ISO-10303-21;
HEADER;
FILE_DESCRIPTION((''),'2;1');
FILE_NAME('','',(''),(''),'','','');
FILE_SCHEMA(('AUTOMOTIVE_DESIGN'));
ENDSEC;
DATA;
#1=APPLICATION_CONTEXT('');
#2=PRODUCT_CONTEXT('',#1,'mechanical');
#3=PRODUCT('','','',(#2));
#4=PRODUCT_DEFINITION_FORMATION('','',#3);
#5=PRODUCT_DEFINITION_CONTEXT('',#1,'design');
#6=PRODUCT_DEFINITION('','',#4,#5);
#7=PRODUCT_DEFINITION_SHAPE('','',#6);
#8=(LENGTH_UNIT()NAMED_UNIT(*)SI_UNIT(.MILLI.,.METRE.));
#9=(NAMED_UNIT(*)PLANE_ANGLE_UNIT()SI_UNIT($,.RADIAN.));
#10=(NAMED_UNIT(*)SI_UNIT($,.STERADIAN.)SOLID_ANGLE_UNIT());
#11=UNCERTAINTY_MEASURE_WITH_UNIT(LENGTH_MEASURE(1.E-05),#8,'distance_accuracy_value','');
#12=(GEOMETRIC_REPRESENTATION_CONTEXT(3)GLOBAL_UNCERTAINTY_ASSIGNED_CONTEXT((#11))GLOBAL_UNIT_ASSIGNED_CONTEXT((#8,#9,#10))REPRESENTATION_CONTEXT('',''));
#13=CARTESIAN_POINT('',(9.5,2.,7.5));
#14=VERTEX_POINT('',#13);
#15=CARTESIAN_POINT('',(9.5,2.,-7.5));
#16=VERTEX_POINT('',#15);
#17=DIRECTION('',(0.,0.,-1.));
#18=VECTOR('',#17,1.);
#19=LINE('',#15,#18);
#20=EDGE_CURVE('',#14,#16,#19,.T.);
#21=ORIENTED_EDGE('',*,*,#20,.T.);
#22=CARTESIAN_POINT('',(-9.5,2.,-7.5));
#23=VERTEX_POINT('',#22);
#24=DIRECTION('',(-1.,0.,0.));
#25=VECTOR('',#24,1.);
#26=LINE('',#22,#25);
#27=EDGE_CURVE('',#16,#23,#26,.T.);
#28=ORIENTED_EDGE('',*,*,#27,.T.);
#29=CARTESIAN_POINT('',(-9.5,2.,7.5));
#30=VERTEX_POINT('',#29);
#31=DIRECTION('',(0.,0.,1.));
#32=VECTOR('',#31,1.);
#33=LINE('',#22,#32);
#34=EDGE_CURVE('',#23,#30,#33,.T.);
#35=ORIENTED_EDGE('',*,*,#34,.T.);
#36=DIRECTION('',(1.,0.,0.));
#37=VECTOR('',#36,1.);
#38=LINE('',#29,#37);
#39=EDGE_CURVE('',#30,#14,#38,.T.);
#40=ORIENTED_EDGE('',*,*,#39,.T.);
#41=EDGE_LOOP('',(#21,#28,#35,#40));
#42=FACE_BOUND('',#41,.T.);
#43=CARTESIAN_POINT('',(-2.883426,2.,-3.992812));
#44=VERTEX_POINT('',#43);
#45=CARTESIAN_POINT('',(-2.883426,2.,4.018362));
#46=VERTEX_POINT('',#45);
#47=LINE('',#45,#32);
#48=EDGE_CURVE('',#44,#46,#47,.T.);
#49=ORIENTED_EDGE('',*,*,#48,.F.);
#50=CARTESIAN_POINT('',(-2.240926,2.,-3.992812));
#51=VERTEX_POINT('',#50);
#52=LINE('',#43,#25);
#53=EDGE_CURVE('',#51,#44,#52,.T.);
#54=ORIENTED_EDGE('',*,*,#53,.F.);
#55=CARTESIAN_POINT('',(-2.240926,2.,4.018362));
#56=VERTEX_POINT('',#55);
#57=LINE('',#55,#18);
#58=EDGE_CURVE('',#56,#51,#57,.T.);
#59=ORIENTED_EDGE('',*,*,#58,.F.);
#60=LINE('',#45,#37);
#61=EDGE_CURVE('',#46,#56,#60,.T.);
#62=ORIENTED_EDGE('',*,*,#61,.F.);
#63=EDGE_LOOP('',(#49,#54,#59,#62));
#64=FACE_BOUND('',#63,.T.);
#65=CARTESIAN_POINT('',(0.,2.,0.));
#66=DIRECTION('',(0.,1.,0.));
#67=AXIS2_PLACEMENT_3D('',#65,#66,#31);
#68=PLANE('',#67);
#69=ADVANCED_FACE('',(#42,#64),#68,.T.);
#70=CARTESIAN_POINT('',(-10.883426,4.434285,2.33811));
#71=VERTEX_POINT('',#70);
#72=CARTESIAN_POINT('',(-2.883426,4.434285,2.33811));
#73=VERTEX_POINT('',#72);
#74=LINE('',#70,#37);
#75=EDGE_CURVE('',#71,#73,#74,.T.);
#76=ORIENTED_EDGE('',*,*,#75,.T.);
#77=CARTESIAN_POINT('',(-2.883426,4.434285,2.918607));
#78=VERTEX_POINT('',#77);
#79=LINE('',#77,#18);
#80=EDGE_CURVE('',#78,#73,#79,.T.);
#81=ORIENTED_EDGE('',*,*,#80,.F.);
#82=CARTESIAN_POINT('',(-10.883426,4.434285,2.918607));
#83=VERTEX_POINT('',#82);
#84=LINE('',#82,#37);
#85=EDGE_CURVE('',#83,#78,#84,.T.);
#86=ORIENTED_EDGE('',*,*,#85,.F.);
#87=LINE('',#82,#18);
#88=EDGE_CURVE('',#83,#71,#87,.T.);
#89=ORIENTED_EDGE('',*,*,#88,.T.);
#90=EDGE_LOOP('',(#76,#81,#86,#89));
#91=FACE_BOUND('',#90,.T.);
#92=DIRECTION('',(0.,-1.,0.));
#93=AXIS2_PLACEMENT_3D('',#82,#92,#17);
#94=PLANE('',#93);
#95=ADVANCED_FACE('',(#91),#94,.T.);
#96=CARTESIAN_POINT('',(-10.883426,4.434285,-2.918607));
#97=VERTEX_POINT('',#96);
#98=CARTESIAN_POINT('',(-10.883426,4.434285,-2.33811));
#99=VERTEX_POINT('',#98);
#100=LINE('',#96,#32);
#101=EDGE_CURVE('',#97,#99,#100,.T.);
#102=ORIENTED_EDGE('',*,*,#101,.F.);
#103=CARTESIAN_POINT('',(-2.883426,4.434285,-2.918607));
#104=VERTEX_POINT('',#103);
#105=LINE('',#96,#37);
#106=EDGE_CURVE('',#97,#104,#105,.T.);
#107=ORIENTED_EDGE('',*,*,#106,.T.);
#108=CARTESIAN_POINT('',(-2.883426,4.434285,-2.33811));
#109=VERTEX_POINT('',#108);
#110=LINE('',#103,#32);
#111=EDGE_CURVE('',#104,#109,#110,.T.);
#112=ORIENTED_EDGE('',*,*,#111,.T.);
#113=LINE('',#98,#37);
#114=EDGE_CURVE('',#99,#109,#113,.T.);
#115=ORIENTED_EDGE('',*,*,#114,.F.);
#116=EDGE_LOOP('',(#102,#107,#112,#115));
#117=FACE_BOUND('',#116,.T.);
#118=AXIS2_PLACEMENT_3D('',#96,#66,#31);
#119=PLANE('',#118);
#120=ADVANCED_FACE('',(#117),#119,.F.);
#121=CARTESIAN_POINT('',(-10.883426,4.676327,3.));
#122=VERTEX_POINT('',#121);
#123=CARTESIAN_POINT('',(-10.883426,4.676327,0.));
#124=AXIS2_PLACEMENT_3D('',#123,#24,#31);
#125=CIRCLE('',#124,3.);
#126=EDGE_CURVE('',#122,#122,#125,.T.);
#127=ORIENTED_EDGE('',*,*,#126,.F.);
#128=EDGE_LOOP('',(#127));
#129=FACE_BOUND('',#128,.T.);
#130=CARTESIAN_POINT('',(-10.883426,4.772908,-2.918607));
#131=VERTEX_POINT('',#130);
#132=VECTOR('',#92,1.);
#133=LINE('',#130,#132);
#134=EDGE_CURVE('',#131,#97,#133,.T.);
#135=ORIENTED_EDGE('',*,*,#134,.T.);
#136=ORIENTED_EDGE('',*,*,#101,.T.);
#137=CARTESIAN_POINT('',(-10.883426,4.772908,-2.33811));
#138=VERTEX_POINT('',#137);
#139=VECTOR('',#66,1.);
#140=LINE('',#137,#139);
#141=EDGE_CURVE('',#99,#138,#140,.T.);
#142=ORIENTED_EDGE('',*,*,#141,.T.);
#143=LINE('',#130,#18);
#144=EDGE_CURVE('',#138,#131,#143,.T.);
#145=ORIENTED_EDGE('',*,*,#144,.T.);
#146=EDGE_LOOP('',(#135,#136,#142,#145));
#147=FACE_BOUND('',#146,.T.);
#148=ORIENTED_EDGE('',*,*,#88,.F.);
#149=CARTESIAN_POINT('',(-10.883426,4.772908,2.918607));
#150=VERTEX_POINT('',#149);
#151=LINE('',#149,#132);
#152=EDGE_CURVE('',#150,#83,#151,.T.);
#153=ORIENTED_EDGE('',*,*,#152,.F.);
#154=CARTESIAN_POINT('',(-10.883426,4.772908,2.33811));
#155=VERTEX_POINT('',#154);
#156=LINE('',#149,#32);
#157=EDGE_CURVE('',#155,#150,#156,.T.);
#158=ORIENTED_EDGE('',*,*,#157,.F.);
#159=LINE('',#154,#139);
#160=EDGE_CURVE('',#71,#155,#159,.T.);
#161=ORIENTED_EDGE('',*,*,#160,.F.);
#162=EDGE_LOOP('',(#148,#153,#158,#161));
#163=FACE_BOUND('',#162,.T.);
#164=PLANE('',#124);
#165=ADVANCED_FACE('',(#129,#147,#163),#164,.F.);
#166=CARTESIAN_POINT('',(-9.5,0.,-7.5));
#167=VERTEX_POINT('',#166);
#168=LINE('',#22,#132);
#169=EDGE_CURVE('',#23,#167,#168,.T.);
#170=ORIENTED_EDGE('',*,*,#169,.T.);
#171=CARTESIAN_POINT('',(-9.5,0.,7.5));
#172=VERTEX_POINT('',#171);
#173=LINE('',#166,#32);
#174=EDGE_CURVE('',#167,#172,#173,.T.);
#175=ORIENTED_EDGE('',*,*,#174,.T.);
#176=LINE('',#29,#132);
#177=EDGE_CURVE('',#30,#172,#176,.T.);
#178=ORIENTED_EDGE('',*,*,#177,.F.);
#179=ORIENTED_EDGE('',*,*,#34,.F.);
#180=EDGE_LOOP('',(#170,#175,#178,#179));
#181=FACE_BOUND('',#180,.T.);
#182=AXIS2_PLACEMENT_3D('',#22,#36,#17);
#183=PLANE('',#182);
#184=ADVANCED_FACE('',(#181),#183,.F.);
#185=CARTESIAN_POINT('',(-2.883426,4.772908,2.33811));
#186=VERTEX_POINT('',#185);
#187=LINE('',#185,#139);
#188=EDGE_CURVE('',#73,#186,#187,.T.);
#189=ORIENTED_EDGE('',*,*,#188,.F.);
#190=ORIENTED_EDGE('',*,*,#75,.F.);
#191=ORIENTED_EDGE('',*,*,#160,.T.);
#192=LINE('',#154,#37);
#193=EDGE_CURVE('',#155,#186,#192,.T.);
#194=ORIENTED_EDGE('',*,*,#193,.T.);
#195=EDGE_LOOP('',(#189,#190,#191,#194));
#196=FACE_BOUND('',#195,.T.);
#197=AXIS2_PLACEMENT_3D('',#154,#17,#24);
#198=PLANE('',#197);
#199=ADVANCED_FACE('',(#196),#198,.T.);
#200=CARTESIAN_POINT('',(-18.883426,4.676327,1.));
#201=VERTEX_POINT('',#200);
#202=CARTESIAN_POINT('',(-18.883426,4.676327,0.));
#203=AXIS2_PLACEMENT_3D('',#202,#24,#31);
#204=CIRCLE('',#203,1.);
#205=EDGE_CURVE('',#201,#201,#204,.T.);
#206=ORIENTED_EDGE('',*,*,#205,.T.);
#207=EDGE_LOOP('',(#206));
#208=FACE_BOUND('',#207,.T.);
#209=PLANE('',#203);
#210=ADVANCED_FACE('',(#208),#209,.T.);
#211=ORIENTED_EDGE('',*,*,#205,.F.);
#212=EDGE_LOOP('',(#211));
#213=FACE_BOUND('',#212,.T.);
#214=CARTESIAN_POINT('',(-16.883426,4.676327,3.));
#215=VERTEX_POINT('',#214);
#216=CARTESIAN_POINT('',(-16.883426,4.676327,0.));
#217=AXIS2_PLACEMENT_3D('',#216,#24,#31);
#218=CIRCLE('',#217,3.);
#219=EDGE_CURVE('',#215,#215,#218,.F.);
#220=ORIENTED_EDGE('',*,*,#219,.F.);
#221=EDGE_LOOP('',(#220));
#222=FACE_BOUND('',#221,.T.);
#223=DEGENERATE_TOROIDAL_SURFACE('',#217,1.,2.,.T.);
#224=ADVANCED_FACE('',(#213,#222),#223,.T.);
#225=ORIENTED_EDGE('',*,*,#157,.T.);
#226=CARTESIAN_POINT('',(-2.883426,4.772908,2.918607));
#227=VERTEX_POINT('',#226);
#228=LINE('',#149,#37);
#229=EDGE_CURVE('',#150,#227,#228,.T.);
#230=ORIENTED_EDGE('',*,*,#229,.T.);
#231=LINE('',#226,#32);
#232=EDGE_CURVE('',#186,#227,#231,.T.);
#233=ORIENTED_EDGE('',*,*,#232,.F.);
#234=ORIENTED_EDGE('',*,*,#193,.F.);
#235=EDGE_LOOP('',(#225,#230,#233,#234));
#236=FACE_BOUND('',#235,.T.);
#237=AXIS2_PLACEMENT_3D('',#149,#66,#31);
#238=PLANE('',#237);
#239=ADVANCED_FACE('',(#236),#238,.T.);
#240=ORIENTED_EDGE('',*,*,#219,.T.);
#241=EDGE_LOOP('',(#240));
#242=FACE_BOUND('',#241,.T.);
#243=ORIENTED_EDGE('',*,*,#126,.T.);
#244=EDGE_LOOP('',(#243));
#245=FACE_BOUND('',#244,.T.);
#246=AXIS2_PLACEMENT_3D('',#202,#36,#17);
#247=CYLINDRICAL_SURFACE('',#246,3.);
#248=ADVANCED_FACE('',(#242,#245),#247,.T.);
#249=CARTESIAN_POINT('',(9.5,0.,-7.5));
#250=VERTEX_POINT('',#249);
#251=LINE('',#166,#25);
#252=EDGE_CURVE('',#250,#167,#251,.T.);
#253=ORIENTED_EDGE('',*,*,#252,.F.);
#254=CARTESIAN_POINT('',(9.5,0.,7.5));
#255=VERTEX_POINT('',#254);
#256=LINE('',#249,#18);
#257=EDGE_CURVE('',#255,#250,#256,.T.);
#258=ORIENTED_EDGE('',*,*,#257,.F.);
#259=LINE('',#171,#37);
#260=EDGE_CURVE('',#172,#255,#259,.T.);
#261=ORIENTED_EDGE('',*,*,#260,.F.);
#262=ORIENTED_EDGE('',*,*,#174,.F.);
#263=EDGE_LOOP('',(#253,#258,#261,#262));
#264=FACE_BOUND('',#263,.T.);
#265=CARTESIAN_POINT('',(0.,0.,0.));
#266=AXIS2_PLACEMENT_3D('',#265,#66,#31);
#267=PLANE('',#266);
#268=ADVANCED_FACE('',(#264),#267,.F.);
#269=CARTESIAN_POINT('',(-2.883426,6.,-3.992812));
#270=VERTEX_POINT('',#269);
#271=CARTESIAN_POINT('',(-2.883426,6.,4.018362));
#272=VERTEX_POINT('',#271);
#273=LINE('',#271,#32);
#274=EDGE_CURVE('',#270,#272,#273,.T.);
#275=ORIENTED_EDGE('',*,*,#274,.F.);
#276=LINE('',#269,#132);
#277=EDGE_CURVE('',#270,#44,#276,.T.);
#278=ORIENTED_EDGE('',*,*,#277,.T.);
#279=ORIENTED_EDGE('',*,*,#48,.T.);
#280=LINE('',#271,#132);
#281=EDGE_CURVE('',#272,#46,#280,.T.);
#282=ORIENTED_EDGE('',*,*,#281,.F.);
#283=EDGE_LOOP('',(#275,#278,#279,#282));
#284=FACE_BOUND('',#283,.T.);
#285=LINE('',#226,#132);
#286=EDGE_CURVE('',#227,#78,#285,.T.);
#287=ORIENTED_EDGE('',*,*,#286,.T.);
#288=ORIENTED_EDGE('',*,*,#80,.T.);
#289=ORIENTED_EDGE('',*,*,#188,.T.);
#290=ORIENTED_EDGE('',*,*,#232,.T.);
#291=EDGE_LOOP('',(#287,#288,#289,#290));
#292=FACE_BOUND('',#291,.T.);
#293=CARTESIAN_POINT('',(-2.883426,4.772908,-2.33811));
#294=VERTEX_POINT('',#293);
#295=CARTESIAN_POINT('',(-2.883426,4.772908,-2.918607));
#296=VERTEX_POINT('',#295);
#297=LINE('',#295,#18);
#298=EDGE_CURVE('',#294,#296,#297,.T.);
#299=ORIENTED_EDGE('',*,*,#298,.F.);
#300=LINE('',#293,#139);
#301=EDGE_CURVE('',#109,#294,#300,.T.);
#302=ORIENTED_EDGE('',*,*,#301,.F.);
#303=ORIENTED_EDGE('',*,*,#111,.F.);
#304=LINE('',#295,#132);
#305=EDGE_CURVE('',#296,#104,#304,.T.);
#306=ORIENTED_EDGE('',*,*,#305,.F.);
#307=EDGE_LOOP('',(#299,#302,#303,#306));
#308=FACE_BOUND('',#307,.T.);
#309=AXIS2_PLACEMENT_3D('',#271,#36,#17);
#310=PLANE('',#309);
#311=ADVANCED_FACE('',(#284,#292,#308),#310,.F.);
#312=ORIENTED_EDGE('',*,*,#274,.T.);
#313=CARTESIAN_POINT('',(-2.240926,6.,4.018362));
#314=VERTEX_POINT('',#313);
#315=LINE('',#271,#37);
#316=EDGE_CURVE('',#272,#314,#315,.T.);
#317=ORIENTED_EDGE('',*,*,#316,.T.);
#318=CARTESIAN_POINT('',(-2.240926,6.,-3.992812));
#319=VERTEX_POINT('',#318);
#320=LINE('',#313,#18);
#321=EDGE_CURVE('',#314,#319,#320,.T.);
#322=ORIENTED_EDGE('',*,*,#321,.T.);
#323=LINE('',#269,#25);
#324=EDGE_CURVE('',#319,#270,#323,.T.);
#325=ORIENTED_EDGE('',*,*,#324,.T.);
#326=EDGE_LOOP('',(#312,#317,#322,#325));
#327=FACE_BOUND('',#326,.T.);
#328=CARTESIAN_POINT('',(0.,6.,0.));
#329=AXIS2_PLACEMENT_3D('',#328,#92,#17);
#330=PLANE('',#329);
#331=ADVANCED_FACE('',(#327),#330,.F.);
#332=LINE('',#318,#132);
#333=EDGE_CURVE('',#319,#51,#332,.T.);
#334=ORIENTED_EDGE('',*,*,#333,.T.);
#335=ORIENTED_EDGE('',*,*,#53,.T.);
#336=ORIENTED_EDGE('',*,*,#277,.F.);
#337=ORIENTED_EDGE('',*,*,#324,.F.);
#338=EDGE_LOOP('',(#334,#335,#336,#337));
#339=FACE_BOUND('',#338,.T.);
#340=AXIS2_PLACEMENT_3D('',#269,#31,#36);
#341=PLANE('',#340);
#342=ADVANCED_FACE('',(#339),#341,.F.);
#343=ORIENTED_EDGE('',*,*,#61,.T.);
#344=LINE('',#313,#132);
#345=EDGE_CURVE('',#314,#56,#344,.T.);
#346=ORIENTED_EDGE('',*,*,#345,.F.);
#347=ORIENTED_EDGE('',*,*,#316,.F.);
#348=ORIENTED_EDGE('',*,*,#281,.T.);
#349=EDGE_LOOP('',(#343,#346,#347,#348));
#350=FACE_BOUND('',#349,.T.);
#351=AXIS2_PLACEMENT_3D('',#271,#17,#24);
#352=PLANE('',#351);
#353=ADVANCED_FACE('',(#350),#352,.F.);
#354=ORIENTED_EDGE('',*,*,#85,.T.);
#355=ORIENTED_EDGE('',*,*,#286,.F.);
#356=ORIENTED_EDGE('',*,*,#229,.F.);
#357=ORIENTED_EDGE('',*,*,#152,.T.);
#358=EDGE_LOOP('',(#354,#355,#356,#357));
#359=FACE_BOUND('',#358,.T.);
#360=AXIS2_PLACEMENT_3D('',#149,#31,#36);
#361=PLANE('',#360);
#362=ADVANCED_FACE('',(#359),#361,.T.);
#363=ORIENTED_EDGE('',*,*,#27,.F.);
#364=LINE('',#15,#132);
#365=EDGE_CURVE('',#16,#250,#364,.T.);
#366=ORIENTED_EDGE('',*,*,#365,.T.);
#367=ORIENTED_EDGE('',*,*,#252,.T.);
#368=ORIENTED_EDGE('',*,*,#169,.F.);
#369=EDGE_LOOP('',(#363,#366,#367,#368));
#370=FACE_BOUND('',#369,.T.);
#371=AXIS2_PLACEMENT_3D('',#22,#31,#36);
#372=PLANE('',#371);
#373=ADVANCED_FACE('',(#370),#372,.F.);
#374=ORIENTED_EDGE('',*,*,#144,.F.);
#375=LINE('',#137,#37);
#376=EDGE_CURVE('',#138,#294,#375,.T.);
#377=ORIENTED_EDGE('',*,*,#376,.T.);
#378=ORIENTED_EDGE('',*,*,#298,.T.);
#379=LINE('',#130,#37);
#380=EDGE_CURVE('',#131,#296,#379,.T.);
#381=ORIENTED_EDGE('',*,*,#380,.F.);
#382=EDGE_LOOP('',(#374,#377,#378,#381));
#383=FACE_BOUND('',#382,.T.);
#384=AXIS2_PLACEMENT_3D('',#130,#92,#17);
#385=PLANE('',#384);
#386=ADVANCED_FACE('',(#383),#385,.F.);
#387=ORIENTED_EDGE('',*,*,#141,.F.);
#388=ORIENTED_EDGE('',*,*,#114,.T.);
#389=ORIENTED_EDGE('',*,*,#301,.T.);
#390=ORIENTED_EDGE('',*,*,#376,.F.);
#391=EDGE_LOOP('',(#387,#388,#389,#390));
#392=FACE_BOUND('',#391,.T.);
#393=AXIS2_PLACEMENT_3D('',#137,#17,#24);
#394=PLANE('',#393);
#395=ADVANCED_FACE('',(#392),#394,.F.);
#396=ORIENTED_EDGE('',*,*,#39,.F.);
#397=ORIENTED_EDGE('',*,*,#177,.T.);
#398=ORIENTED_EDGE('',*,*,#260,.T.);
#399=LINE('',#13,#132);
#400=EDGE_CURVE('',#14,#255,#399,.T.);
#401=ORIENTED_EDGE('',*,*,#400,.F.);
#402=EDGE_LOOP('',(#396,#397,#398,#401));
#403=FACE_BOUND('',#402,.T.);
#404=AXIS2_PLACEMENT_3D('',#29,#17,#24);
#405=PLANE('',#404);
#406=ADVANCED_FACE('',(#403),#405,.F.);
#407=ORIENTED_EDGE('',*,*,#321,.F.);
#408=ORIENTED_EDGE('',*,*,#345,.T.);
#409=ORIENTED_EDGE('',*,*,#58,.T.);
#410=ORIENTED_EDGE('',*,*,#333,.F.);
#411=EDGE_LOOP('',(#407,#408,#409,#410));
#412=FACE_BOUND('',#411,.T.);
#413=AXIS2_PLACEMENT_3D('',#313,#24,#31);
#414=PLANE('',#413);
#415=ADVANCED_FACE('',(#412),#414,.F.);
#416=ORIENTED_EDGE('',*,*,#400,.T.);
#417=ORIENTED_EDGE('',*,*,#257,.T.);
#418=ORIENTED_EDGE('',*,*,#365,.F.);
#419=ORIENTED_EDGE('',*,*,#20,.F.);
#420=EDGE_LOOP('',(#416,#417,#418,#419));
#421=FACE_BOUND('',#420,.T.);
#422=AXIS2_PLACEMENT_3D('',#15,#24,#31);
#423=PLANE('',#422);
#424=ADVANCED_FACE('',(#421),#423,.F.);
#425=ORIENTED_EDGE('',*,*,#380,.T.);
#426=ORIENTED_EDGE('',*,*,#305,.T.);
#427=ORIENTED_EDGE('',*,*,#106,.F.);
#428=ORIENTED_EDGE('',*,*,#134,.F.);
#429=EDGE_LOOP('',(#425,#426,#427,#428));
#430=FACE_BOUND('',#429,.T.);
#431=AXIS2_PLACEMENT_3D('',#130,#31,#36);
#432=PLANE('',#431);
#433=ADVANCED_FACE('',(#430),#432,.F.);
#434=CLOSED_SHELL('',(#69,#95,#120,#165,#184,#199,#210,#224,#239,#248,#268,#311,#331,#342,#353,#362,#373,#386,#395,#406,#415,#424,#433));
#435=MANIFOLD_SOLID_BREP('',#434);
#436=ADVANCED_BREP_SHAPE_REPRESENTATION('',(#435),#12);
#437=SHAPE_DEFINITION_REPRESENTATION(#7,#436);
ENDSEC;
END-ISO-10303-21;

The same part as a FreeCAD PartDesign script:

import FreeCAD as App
import Part
import Sketcher
from FreeCAD import Vector
Q = App.Units.Quantity


def edges_at(feature, points):
    """Names of the edges that pass closest to the given points."""
    edges = feature.Shape.Edges
    near = lambda p: min(range(len(edges)), key=lambda i: edges[i].distToShape(Part.Vertex(*p))[0])
    return sorted({f"Edge{near(p) + 1}" for p in points})


def add_polygon(sketch, points):
    """Adds a closed chain of lines whose ends are joined by coincident constraints."""
    first, n = sketch.GeometryCount, len(points)
    for a, b in zip(points, points[1:] + points[:1]):
        sketch.addGeometry(Part.LineSegment(App.Vector(*a, 0), App.Vector(*b, 0)), False)
    for i in range(n):
        sketch.addConstraint(Sketcher.Constraint("Coincident", first + i, 2, first + (i + 1) % n, 1))

doc = App.newDocument("Part")
params = doc.addObject("Spreadsheet::Sheet", "Params")
for row, (alias, value) in enumerate([
    ("sketch1_width", "19 mm"),
    ("sketch1_height", "15 mm"),
    ("pad1_length", "2 mm"),
    ("pad2_length", "4 mm"),
    ("pad3_length", "8 mm"),
    ("sketch4_diameter", "6 mm"),
    ("pad4_length", "8 mm"),
    ("fillet_radius", "2 mm"),
], start=1):
    params.set(f"A{row}", alias)
    params.set(f"B{row}", "=" + value)
    params.setAlias(f"B{row}", alias)

body = doc.addObject("PartDesign::Body", "Body")

sketch1 = body.newObject("Sketcher::SketchObject", "Sketch")
sketch1.AttachmentSupport = (doc.getObject("XZ_Plane"), [""])
sketch1.MapMode = "FlatFace"
add_polygon(sketch1, [(-9.5, -7.5), (-9.5, 7.5), (9.5, 7.5), (9.5, -7.5)])
sketch1.addConstraint(Sketcher.Constraint("Vertical", 0))
sketch1.addConstraint(Sketcher.Constraint("Horizontal", 1))
sketch1.addConstraint(Sketcher.Constraint("Vertical", 2))
sketch1.addConstraint(Sketcher.Constraint("Horizontal", 3))
sketch1.addConstraint(Sketcher.Constraint("Symmetric", 0, 2, 2, 2, -1, 1))
sketch1.addConstraint(Sketcher.Constraint("DistanceX", 1, 1, 1, 2, Q("19 mm")))
sketch1.addConstraint(Sketcher.Constraint("DistanceY", 0, 1, 0, 2, Q("15 mm")))
sketch1.setExpression("Constraints[9]", "Params.sketch1_width")
sketch1.setExpression("Constraints[10]", "Params.sketch1_height")
pad1 = body.newObject("PartDesign::Pad", "Pad")
pad1.Profile = sketch1
pad1.setExpression("Length", "Params.pad1_length")
pad1.Reversed = True

sketch2 = body.newObject("Sketcher::SketchObject", "Sketch001")
sketch2.AttachmentSupport = (doc.getObject("XZ_Plane"), [""])
sketch2.MapMode = "FlatFace"
sketch2.AttachmentOffset = App.Placement(Vector(0, 0, -2), App.Rotation())
add_polygon(sketch2, [(-2.883426, -3.992812), (-2.883426, 4.018362), (-2.240926, 4.018362), (-2.240926, -3.992812)])
sketch2.addConstraint(Sketcher.Constraint("Vertical", 0))
sketch2.addConstraint(Sketcher.Constraint("Horizontal", 1))
sketch2.addConstraint(Sketcher.Constraint("Vertical", 2))
sketch2.addConstraint(Sketcher.Constraint("Horizontal", 3))
sketch2.addConstraint(Sketcher.Constraint("DistanceX", 1, 1, 1, 2, Q("0.6425 mm")))
sketch2.addConstraint(Sketcher.Constraint("DistanceY", 0, 1, 0, 2, Q("8.011173 mm")))
sketch2.addConstraint(Sketcher.Constraint("DistanceY", -1, 1, 0, 2, Q("4.018362 mm")))
sketch2.addConstraint(Sketcher.Constraint("DistanceX", 0, 2, -1, 1, Q("2.883426 mm")))
pad2 = body.newObject("PartDesign::Pad", "Pad001")
pad2.Profile = sketch2
pad2.setExpression("Length", "Params.pad2_length")
pad2.Reversed = True

sketch3 = body.newObject("Sketcher::SketchObject", "Sketch002")
sketch3.AttachmentSupport = (doc.getObject("YZ_Plane"), [""])
sketch3.MapMode = "FlatFace"
sketch3.AttachmentOffset = App.Placement(Vector(0, 0, -2.883426), App.Rotation())
add_polygon(sketch3, [(4.772908, -2.918607), (4.434285, -2.918607), (4.434285, -2.33811), (4.772908, -2.33811)])
sketch3.addConstraint(Sketcher.Constraint("Horizontal", 0))
sketch3.addConstraint(Sketcher.Constraint("Vertical", 1))
sketch3.addConstraint(Sketcher.Constraint("Horizontal", 2))
sketch3.addConstraint(Sketcher.Constraint("Vertical", 3))
sketch3.addConstraint(Sketcher.Constraint("DistanceX", 0, 2, 0, 1, Q("0.338623 mm")))
sketch3.addConstraint(Sketcher.Constraint("DistanceY", 1, 1, 1, 2, Q("0.580496 mm")))
sketch3.addConstraint(Sketcher.Constraint("DistanceY", 1, 2, -1, 1, Q("2.33811 mm")))
sketch3.addConstraint(Sketcher.Constraint("DistanceX", -1, 1, 0, 2, Q("4.434285 mm")))
pad3 = body.newObject("PartDesign::Pad", "Pad002")
pad3.Profile = sketch3
pad3.setExpression("Length", "Params.pad3_length")
pad3.Reversed = True
doc.recompute()

mirrored = body.newObject("PartDesign::Mirrored", "Mirrored")
mirrored.Originals = [pad3]
mirrored.MirrorPlane = (doc.getObject("XY_Plane"), [""])
body.Tip = mirrored

sketch4 = body.newObject("Sketcher::SketchObject", "Sketch003")
sketch4.AttachmentSupport = (doc.getObject("YZ_Plane"), [""])
sketch4.MapMode = "FlatFace"
sketch4.AttachmentOffset = App.Placement(Vector(0, 0, -10.883426), App.Rotation())
sketch4.addGeometry(Part.Circle(Vector(4.676327, 0, 0), Vector(0, 0, 1), 3), False)
sketch4.addConstraint(Sketcher.Constraint("PointOnObject", 0, 3, -1))
sketch4.addConstraint(Sketcher.Constraint("Diameter", 0, Q("6 mm")))
sketch4.addConstraint(Sketcher.Constraint("DistanceX", -1, 1, 0, 3, Q("4.676327 mm")))
sketch4.setExpression("Constraints[1]", "Params.sketch4_diameter")
pad4 = body.newObject("PartDesign::Pad", "Pad003")
pad4.Profile = sketch4
pad4.setExpression("Length", "Params.pad4_length")
pad4.Reversed = True
doc.recompute()

fillet = body.newObject("PartDesign::Fillet", "Fillet")
fillet.Base = (pad4, edges_at(pad4, [(-18.883, 4.676, -3)]))
fillet.setExpression("Radius", "Params.fillet_radius")

doc.recompute()
